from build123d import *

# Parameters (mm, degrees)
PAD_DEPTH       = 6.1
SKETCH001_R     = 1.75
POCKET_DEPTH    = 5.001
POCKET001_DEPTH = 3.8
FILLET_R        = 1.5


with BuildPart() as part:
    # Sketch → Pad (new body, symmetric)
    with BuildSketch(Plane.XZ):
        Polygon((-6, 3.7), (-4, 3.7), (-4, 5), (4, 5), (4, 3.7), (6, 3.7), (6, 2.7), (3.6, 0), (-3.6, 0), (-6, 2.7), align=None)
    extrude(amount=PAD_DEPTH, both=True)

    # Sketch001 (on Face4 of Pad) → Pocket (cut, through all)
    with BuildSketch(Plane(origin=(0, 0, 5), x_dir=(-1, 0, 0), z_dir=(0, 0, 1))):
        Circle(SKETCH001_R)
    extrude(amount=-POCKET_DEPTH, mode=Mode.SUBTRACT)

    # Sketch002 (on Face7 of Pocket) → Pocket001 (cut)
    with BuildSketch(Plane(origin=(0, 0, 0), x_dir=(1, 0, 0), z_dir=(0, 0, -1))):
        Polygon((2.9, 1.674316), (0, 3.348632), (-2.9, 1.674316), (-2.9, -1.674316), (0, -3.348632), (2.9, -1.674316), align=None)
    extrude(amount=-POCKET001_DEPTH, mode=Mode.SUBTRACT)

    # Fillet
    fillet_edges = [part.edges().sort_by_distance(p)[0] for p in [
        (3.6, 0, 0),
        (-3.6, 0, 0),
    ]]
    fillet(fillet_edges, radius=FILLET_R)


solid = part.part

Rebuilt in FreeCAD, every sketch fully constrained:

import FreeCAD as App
import Part
import Sketcher

V = App.Vector
Q = App.Units.Quantity


def edges_at(feature, points):
    """Names of the edges that pass closest to the given points."""
    edges = feature.Shape.Edges
    near = lambda p: min(range(len(edges)), key=lambda i: edges[i].distToShape(Part.Vertex(*p))[0])
    return sorted({f"Edge{near(p) + 1}" for p in points})


def add_polygon(sketch, points):
    """Adds a closed chain of lines whose ends are joined by coincident constraints."""
    first, n = sketch.GeometryCount, len(points)
    for a, b in zip(points, points[1:] + points[:1]):
        sketch.addGeometry(Part.LineSegment(App.Vector(*a, 0), App.Vector(*b, 0)), False)
    for i in range(n):
        sketch.addConstraint(Sketcher.Constraint("Coincident", first + i, 2, first + (i + 1) % n, 1))

doc = App.newDocument("Part")
params = doc.addObject("Spreadsheet::Sheet", "Params")
for row, (alias, value) in enumerate([
    ("sketch1_width", "2 mm"),
    ("sketch1_width2", "8 mm"),
    ("sketch1_height", "1 mm"),
    ("sketch1_width3", "7.2 mm"),
    ("sketch1_height2", "1.3 mm"),
    ("pad1_length", "12.2 mm"),
    ("sketch2_diameter", "3.5 mm"),
    ("pocket2_length", "3.8 mm"),
    ("fillet_radius", "1.5 mm"),
], start=1):
    params.set(f"A{row}", alias)
    params.set(f"B{row}", "=" + value)
    params.setAlias(f"B{row}", alias)

body = doc.addObject("PartDesign::Body", "Body")

# Sketch on XZ plane
sketch1 = body.newObject("Sketcher::SketchObject", "Sketch")
sketch1.AttachmentSupport = (doc.getObject("XZ_Plane"), [""])
sketch1.MapMode = "FlatFace"
add_polygon(sketch1, [(-4, 3.7), (-6, 3.7), (-6, 2.7), (-3.6, 0), (3.6, 0), (6, 2.7), (6, 3.7), (4, 3.7), (4, 5), (-4, 5)])  # lines 0-9
sketch1.addConstraint([
    Sketcher.Constraint("Horizontal", 0),
    Sketcher.Constraint("Vertical", 1),
    Sketcher.Constraint("Horizontal", 3),
    Sketcher.Constraint("Vertical", 5),
    Sketcher.Constraint("Horizontal", 6),
    Sketcher.Constraint("Vertical", 7),
    Sketcher.Constraint("Horizontal", 8),
    Sketcher.Constraint("Vertical", 9),
    Sketcher.Constraint("Symmetric", 2, 2, 3, 2, -1, 1),
    Sketcher.Constraint("Symmetric", 1, 2, 4, 2, -2),
    Sketcher.Constraint("Symmetric", 6, 2, 9, 2, -2),
    Sketcher.Constraint("DistanceX", 0, 2, 0, 1, 2.0),
    Sketcher.Constraint("DistanceX", 8, 2, 8, 1, 8.0),
    Sketcher.Constraint("DistanceY", 1, 2, 1, 1, 1.0),
    Sketcher.Constraint("DistanceX", 3, 1, 3, 2, 7.2),
    Sketcher.Constraint("DistanceY", 7, 1, 7, 2, 1.3),
    Sketcher.Constraint("DistanceY", -1, 1, 7, 2, 5.0),
])
sketch1.setExpression("Constraints[21]", "Params.sketch1_width")
sketch1.setExpression("Constraints[22]", "Params.sketch1_width2")
sketch1.setExpression("Constraints[23]", "Params.sketch1_height")
sketch1.setExpression("Constraints[24]", "Params.sketch1_width3")
sketch1.setExpression("Constraints[25]", "Params.sketch1_height2")
pad1 = body.newObject("PartDesign::Pad", "Pad")
pad1.Profile = sketch1
pad1.setExpression("Length", "Params.pad1_length")
pad1.Midplane = True

# Sketch on XY plane
sketch2 = body.newObject("Sketcher::SketchObject", "Sketch001")
sketch2.AttachmentSupport = (doc.getObject("XY_Plane"), [""])
sketch2.MapMode = "FlatFace"
sketch2.AttachmentOffset = App.Placement(V(0, 0, 5), App.Rotation())
sketch2.addGeometry(Part.Circle(V(0, 0, 0), V(0, 0, 1), 1.8), False)
sketch2.addConstraint([
    Sketcher.Constraint("Coincident", 0, 3, -1, 1),
    Sketcher.Constraint("Diameter", 0, 3.5),
])
sketch2.setExpression("Constraints[1]", "Params.sketch2_diameter")
pocket1 = body.newObject("PartDesign::Pocket", "Pocket")
pocket1.Profile = sketch2
pocket1.Type = "ThroughAll"

# Sketch on XY plane
sketch3 = body.newObject("Sketcher::SketchObject", "Sketch002")
sketch3.AttachmentSupport = (doc.getObject("XY_Plane"), [""])
sketch3.MapMode = "FlatFace"
add_polygon(sketch3, [(2.9, -1.7), (0, -3.3), (-2.9, -1.7), (-2.9, 1.7), (0, 3.3), (2.9, 1.7)])  # lines 0-5
sketch3.addConstraint([
    Sketcher.Constraint("Vertical", 2),
    Sketcher.Constraint("Vertical", 5),
    Sketcher.Constraint("Symmetric", 0, 2, 3, 2, -1, 1),
    Sketcher.Constraint("Symmetric", 1, 2, 4, 2, -1, 1),
    Sketcher.Constraint("PointOnObject", 0, 2, -2),
    Sketcher.Constraint("Parallel", 0, 3),
    Sketcher.Constraint("Horizontal", 2, 2, 4, 2),
    Sketcher.Constraint("Angle", 0, Q("-149.999997 deg")),
    Sketcher.Constraint("DistanceX", 1, 2, -1, 1, 2.9),
    Sketcher.Constraint("DistanceY", 2, 1, 2, 2, 3.348632),
])
pocket2 = body.newObject("PartDesign::Pocket", "Pocket001")
pocket2.Profile = sketch3
pocket2.setExpression("Length", "Params.pocket2_length")
pocket2.Reversed = True
doc.recompute()

fillet = body.newObject("PartDesign::Fillet", "Fillet")
fillet.Base = (pocket2, edges_at(pocket2, [(3.6, 0, 0), (-3.6, 0, 0)]))
fillet.setExpression("Radius", "Params.fillet_radius")

doc.recompute()
